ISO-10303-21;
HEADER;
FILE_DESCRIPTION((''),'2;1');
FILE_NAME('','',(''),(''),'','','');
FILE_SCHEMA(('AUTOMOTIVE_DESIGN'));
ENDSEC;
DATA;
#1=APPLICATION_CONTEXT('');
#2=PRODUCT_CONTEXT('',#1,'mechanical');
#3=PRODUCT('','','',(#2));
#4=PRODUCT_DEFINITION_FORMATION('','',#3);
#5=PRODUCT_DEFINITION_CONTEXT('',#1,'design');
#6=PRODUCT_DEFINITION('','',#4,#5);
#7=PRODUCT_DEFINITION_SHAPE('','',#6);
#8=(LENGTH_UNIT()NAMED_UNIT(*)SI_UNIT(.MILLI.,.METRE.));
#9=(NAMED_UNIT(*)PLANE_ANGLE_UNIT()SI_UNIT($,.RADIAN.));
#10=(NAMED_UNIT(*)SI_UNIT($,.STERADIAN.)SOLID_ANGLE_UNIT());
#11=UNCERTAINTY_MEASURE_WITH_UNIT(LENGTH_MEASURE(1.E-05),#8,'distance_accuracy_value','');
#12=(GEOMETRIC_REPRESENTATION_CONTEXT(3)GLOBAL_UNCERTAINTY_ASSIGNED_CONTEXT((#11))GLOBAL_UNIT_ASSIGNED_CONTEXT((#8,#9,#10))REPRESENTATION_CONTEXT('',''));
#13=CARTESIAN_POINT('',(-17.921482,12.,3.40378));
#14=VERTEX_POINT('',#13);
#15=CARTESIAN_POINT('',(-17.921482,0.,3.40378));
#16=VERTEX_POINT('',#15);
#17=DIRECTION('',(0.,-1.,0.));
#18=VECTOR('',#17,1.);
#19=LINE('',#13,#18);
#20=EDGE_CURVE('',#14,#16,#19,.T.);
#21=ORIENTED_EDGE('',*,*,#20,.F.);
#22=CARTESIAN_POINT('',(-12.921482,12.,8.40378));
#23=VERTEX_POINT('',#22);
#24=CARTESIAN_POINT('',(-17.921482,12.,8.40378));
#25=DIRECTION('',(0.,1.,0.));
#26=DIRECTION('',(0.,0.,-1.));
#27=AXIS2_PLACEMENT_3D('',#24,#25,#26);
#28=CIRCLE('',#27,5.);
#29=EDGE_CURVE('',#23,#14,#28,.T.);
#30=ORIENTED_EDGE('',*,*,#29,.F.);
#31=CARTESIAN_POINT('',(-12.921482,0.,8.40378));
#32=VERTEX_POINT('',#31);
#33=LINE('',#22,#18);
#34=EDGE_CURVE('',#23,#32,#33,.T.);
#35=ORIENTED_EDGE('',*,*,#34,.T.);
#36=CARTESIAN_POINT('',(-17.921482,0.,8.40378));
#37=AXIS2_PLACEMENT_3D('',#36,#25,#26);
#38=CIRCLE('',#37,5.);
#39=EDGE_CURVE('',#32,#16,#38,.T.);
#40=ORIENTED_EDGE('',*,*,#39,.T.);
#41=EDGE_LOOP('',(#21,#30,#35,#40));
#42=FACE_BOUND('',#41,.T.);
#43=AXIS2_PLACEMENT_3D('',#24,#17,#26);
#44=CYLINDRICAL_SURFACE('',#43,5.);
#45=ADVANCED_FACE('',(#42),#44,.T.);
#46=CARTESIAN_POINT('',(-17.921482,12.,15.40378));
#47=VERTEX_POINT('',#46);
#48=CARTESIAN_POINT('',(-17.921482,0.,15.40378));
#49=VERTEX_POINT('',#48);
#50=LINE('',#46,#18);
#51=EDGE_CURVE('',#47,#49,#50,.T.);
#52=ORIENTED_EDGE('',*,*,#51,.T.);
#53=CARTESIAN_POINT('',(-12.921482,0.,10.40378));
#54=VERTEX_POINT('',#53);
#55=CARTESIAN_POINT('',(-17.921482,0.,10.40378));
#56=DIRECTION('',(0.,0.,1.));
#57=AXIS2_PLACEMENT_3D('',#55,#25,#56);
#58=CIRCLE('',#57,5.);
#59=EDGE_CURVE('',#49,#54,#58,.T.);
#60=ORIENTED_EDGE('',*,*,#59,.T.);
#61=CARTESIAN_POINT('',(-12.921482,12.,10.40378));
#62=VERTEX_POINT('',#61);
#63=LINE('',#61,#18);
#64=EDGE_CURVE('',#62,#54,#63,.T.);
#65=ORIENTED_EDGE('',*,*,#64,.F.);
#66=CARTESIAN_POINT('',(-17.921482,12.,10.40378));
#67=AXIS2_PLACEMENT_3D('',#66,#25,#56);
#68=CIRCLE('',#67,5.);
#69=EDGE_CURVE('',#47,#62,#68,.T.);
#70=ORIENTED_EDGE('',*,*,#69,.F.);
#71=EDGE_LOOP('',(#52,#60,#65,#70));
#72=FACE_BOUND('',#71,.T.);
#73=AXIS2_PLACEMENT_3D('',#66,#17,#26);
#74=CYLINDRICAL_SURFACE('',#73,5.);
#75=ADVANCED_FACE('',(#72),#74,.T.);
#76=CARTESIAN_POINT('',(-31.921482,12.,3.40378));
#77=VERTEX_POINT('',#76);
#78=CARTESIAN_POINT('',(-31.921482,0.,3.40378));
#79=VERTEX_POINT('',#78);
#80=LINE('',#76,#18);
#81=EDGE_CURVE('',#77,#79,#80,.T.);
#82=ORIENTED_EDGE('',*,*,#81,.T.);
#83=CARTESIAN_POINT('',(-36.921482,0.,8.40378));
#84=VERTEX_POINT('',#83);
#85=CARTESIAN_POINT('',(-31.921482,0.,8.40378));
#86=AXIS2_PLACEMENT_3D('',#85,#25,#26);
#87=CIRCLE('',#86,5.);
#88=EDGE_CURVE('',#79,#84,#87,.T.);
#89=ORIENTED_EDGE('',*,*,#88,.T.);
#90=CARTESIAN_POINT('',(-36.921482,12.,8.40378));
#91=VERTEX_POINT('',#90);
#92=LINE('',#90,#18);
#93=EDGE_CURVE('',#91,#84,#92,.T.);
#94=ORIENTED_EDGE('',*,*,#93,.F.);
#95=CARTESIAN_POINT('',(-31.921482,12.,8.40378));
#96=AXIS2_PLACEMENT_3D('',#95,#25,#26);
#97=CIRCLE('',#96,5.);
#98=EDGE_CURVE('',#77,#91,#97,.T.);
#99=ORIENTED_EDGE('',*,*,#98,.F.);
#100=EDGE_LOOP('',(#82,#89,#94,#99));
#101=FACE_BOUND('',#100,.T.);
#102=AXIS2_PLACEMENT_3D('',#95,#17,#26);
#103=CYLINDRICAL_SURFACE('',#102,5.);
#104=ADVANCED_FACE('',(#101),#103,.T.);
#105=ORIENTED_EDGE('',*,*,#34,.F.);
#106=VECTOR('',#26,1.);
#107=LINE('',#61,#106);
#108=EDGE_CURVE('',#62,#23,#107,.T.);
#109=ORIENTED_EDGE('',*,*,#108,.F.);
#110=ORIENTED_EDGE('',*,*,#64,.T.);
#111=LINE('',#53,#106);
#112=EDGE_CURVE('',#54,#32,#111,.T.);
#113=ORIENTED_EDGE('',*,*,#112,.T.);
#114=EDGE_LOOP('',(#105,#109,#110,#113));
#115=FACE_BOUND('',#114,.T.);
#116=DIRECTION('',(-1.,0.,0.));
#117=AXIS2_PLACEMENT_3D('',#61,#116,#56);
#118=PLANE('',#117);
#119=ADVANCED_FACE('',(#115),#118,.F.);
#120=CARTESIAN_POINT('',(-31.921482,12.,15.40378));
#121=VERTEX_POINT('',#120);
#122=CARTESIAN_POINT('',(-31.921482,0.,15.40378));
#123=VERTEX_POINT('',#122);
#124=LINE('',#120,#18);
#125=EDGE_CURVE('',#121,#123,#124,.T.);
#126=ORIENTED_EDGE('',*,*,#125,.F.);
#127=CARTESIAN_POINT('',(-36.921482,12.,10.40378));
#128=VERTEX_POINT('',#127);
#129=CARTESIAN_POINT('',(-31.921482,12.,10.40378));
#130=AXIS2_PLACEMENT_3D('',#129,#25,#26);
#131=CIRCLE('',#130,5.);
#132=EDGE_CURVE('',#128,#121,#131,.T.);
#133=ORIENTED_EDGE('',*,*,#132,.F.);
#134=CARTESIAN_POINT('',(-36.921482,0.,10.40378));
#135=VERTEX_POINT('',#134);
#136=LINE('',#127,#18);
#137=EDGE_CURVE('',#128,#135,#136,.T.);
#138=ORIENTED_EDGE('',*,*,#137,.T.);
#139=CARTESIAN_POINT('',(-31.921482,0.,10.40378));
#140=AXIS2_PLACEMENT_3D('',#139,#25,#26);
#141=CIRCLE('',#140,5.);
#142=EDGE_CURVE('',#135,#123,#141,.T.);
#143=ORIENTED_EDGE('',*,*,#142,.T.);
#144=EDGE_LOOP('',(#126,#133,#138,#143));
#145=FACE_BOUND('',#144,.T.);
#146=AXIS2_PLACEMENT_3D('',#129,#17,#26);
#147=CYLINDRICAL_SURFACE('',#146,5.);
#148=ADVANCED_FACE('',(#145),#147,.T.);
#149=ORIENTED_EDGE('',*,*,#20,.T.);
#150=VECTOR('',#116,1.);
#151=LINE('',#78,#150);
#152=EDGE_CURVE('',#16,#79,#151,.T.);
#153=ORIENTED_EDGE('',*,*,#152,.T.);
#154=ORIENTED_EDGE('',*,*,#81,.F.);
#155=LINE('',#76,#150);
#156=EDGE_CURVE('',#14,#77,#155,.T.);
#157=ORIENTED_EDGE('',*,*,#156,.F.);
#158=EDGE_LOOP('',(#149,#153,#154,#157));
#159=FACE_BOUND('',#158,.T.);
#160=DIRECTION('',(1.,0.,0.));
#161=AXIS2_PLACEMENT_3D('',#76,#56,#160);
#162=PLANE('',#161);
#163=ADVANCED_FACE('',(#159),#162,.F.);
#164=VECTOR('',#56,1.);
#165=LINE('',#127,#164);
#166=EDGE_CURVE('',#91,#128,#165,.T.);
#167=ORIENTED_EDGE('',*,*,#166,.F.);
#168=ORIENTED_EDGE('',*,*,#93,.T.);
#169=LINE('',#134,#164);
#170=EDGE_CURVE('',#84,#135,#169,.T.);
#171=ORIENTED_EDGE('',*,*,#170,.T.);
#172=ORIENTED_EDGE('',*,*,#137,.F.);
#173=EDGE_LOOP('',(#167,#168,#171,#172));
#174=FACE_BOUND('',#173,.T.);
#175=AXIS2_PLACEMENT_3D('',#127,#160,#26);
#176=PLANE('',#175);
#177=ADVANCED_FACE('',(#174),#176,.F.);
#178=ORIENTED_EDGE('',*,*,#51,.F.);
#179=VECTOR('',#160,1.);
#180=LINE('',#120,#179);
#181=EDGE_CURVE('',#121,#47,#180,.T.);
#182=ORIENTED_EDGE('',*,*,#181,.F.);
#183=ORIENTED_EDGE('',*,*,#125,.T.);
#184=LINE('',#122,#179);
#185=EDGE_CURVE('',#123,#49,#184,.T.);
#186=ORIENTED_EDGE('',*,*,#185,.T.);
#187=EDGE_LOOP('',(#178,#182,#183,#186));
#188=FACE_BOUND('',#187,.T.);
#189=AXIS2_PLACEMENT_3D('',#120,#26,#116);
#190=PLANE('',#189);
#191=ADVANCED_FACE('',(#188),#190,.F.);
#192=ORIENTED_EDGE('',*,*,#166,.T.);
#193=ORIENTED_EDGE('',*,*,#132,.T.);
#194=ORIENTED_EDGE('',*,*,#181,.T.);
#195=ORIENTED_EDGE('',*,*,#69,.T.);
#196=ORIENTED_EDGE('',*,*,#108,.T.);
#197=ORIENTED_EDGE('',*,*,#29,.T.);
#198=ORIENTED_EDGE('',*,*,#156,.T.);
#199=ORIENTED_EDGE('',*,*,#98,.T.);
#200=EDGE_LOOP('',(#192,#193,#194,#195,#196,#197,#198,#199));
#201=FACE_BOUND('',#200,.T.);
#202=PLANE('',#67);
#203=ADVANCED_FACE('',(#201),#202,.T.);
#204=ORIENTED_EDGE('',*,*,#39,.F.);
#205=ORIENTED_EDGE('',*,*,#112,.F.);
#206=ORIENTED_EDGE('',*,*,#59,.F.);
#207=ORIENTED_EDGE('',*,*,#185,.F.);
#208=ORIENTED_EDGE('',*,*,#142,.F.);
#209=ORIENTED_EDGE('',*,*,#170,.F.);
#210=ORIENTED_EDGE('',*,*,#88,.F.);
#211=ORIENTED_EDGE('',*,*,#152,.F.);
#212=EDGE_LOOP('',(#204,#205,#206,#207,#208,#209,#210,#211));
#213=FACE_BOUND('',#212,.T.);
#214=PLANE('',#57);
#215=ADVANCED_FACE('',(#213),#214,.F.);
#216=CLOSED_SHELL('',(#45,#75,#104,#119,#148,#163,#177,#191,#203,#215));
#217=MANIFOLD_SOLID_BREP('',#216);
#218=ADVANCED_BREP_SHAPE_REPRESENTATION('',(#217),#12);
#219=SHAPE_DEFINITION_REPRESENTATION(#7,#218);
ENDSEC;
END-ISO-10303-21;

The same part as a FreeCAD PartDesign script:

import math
import FreeCAD as App
import Part
import Sketcher
from FreeCAD import Vector
Q = App.Units.Quantity

doc = App.newDocument("Part")
params = doc.addObject("Spreadsheet::Sheet", "Params")
for row, (alias, value) in enumerate([
    ("sketch1_radius", "5 mm"),
    ("sketch1_width", "14 mm"),
    ("sketch1_height", "2 mm"),
    ("pad1_length", "12 mm"),
], start=1):
    params.set(f"A{row}", alias)
    params.set(f"B{row}", "=" + value)
    params.setAlias(f"B{row}", alias)

body = doc.addObject("PartDesign::Body", "Body")

# Sketch on XZ plane
sketch1 = body.newObject("Sketcher::SketchObject", "Sketch")
sketch1.AttachmentSupport = (doc.getObject("XZ_Plane"), [""])
sketch1.MapMode = "FlatFace"
sketch1.addGeometry([
    Part.LineSegment(Vector(-31.9, 15.4, 0), Vector(-17.9, 15.4, 0)),  # 0
    Part.ArcOfCircle(Part.Circle(Vector(-17.9, 10.4, 0), Vector(0, 0, 1), 5), math.radians(0), math.radians(90)),  # 1
    Part.LineSegment(Vector(-12.9, 10.4, 0), Vector(-12.9, 8.4, 0)),  # 2
    Part.ArcOfCircle(Part.Circle(Vector(-17.9, 8.4, 0), Vector(0, 0, 1), 5), math.radians(-90), math.radians(0)),  # 3
    Part.LineSegment(Vector(-17.9, 3.4, 0), Vector(-31.9, 3.4, 0)),  # 4
    Part.ArcOfCircle(Part.Circle(Vector(-31.9, 8.4, 0), Vector(0, 0, 1), 5), math.radians(180), math.radians(270)),  # 5
    Part.LineSegment(Vector(-36.9, 8.4, 0), Vector(-36.9, 10.4, 0)),  # 6
    Part.ArcOfCircle(Part.Circle(Vector(-31.9, 10.4, 0), Vector(0, 0, 1), 5), math.radians(90), math.radians(180)),  # 7
], False)
sketch1.addConstraint([
    Sketcher.Constraint("Tangent", 0, 2, 1, 2),
    Sketcher.Constraint("Tangent", 1, 1, 2, 1),
    Sketcher.Constraint("Tangent", 2, 2, 3, 2),
    Sketcher.Constraint("Tangent", 3, 1, 4, 1),
    Sketcher.Constraint("Tangent", 4, 2, 5, 2),
    Sketcher.Constraint("Tangent", 5, 1, 6, 1),
    Sketcher.Constraint("Tangent", 6, 2, 7, 2),
    Sketcher.Constraint("Tangent", 7, 1, 0, 1),
    Sketcher.Constraint("Horizontal", 0),
    Sketcher.Constraint("Vertical", 2),
    Sketcher.Constraint("Horizontal", 4),
    Sketcher.Constraint("Vertical", 6),
    Sketcher.Constraint("Equal", 1, 3),
    Sketcher.Constraint("Equal", 3, 5),
    Sketcher.Constraint("Equal", 5, 7),
    Sketcher.Constraint("Radius", 1, Q("5 mm")),
    Sketcher.Constraint("DistanceX", 0, 1, 0, 2, Q("14 mm")),
    Sketcher.Constraint("DistanceY", 2, 2, 2, 1, Q("2 mm")),
    Sketcher.Constraint("DistanceX", 1, 3, -1, 1, Q("17.921482 mm")),
    Sketcher.Constraint("DistanceY", -1, 1, 1, 3, Q("10.40378 mm")),
])
sketch1.setExpression("Constraints[15]", "Params.sketch1_radius")
sketch1.setExpression("Constraints[16]", "Params.sketch1_width")
sketch1.setExpression("Constraints[17]", "Params.sketch1_height")
pad1 = body.newObject("PartDesign::Pad", "Pad")
pad1.Profile = sketch1
pad1.setExpression("Length", "Params.pad1_length")
pad1.Reversed = True

doc.recompute()
